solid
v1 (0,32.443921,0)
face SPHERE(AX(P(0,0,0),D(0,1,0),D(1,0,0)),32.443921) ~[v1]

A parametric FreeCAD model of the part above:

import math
import FreeCAD as App
import Part
import Sketcher
from FreeCAD import Vector
Q = App.Units.Quantity

doc = App.newDocument("Part")
body = doc.addObject("PartDesign::Body", "Body")

# Sketch on XY plane
sketch1 = body.newObject("Sketcher::SketchObject", "Sketch")
sketch1.AttachmentSupport = (doc.getObject("XY_Plane"), [""])
sketch1.MapMode = "FlatFace"
sketch1.addGeometry([
    Part.ArcOfCircle(Part.Circle(Vector(0, 0, 0), Vector(0, 0, 1), 32.443921), math.radians(-90), math.radians(90)),
    Part.LineSegment(Vector(0, 32.443921, 0), Vector(0, -32.443921, 0)),
], False)
sketch1.addConstraint([
    Sketcher.Constraint("Coincident", 0, 1, 1, 2),
    Sketcher.Constraint("Coincident", 1, 1, 0, 2),
    Sketcher.Constraint("Vertical", 1),
    Sketcher.Constraint("Coincident", 0, 3, -1, 1),
    Sketcher.Constraint("PointOnObject", 0, 1, -2),
    Sketcher.Constraint("Radius", 0, Q("32.443921 mm")),
])
revolution = body.newObject("PartDesign::Revolution", "Revolution")
revolution.Profile = sketch1
revolution.ReferenceAxis = (sketch1, ["V_Axis"])
revolution.Angle = 360

doc.recompute()
